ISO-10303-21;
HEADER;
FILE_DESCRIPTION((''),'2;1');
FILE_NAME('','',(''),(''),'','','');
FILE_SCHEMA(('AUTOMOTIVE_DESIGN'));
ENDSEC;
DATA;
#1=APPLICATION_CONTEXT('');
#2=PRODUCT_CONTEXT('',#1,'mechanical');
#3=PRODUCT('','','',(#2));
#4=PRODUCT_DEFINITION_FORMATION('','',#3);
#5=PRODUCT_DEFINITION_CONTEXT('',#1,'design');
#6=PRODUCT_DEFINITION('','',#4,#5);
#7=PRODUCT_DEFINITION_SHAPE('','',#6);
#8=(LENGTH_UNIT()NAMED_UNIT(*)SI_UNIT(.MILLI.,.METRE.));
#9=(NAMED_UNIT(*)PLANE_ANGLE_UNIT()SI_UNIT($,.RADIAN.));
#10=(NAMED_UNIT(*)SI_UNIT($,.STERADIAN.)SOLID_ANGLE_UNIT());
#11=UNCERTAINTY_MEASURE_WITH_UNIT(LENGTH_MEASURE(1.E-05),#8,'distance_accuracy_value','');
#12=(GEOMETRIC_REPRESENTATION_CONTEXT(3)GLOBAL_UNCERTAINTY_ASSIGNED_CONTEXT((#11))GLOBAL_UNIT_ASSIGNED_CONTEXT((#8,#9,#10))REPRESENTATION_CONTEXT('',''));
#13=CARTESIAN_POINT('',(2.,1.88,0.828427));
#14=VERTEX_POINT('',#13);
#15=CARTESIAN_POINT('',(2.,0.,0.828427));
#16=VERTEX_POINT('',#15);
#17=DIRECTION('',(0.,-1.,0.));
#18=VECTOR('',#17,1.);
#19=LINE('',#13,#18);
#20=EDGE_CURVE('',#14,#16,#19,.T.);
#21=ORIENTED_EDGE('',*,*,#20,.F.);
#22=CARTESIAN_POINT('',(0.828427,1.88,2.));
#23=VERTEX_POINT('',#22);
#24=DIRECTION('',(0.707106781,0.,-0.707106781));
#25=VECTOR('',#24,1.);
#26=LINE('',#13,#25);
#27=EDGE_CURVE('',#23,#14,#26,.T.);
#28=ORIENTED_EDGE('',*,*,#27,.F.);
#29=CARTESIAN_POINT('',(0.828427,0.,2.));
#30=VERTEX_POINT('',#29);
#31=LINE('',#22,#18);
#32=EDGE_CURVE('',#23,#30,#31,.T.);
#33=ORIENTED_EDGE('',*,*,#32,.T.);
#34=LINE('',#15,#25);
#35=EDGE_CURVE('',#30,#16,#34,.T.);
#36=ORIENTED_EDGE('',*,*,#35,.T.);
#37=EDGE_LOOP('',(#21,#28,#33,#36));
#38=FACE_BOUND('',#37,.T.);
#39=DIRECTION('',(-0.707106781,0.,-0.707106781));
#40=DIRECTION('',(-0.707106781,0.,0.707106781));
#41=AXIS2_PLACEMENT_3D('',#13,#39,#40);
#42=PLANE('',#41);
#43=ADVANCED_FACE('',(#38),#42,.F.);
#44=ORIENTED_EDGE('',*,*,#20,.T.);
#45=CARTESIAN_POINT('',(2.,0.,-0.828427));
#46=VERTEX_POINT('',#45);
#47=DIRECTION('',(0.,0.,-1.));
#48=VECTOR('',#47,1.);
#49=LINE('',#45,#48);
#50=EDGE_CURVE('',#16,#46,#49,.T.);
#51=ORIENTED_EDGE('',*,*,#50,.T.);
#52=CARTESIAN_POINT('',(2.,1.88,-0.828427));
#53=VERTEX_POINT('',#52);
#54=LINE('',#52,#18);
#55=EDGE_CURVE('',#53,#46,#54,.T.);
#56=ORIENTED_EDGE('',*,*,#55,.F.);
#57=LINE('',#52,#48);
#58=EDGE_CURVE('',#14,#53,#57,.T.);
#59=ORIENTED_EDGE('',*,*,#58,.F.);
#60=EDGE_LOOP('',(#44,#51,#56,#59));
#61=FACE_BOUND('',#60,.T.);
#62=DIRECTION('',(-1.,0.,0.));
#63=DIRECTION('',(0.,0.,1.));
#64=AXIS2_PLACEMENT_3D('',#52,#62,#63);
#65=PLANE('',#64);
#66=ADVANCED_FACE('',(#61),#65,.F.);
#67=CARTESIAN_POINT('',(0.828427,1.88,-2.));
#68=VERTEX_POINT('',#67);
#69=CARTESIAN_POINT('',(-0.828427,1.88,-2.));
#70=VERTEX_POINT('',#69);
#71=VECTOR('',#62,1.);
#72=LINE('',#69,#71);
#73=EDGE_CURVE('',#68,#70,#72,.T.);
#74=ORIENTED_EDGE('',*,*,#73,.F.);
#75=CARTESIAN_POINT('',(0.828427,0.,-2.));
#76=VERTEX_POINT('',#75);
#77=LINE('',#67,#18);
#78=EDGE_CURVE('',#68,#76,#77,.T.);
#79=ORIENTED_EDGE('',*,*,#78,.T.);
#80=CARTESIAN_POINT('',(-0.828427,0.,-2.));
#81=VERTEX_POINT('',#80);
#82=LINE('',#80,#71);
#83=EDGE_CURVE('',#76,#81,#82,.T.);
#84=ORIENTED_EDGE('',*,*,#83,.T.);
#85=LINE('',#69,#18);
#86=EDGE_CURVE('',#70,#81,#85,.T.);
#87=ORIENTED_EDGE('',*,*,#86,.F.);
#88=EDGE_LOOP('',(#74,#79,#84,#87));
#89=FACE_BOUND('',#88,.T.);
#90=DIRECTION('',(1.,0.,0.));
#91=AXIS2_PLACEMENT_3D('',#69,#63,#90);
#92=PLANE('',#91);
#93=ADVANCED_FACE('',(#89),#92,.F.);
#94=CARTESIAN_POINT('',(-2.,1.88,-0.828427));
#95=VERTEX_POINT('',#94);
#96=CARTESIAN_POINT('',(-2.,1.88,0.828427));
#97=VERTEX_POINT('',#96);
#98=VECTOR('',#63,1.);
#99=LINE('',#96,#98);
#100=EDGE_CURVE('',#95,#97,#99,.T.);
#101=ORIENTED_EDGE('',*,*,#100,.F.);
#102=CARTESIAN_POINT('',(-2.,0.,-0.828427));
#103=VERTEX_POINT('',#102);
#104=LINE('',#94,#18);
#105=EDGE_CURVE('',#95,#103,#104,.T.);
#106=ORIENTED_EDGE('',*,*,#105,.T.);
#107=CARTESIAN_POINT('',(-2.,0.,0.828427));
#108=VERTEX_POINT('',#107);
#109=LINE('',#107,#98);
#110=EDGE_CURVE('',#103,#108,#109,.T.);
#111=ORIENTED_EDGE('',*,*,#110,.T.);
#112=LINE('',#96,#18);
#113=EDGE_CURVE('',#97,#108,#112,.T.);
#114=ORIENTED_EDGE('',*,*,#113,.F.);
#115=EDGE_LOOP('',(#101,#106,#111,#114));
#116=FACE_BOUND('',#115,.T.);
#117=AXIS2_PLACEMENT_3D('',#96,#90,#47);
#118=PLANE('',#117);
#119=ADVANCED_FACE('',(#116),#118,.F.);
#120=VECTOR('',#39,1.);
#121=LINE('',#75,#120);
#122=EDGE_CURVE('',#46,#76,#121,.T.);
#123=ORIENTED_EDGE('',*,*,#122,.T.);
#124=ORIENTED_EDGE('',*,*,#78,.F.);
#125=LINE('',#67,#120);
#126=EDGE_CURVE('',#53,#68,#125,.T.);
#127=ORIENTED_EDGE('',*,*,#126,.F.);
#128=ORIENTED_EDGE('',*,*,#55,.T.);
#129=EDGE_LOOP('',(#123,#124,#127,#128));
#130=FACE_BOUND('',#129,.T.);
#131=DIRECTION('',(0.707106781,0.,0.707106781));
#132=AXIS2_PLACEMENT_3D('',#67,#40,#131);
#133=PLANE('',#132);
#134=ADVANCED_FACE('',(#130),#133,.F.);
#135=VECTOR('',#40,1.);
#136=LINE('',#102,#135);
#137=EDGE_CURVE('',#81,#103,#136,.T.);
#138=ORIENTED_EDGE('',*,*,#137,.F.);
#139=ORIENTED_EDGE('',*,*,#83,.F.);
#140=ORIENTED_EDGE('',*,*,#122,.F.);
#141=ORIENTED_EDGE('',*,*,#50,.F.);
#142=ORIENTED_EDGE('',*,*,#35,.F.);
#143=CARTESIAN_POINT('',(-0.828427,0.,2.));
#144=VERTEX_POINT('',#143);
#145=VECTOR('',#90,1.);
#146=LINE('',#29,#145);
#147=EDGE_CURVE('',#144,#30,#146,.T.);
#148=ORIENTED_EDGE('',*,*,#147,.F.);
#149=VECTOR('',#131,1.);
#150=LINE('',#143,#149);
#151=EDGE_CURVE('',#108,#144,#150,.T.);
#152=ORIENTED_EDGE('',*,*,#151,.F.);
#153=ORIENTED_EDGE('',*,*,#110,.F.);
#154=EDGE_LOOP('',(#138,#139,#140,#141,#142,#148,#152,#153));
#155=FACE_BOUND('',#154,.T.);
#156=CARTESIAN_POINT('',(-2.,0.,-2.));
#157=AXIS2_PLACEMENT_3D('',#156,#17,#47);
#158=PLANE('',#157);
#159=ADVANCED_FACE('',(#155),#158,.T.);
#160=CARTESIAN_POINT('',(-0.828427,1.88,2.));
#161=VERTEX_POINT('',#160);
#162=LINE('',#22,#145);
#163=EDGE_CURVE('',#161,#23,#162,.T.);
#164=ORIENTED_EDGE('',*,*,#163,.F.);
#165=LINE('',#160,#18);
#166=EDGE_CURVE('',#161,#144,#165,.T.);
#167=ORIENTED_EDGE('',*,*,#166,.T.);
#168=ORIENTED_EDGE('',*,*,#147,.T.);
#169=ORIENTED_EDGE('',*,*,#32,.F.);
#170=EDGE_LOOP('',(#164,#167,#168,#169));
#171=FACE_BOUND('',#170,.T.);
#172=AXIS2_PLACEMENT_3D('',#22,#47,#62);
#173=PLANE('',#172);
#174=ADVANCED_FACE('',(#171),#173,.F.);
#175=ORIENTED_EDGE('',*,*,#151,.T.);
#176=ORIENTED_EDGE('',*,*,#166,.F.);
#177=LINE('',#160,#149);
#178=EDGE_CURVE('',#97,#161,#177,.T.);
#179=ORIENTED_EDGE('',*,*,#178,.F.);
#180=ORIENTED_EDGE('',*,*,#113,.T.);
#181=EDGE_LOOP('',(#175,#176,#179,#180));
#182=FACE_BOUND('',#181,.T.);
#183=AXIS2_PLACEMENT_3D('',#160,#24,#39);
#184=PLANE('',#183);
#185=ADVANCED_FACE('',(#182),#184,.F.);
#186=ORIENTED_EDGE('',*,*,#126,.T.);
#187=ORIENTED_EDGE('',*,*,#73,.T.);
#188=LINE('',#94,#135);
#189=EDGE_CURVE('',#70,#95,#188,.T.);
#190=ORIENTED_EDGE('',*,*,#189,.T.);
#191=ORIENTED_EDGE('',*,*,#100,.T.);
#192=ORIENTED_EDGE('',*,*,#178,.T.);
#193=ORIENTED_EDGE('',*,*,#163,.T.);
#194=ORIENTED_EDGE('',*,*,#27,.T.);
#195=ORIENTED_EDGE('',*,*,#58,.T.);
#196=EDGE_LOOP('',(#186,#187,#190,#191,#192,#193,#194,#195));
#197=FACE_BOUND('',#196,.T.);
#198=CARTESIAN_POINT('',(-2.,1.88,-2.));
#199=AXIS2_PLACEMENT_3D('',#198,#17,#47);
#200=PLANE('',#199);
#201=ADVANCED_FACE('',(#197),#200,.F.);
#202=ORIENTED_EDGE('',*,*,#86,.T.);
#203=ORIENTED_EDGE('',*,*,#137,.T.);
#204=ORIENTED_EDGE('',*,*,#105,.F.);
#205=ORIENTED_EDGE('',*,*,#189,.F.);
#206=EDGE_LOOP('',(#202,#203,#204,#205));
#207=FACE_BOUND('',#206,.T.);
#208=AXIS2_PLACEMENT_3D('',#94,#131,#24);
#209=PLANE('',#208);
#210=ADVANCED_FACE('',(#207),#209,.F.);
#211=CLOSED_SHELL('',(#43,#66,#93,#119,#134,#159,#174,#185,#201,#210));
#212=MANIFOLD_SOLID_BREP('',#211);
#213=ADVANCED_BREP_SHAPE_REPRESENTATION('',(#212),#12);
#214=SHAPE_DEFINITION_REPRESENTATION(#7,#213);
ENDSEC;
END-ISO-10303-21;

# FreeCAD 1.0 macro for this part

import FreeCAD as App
import Part
import Sketcher


def add_polygon(sketch, points):
    """Adds a closed chain of lines whose ends are joined by coincident constraints."""
    first, n = sketch.GeometryCount, len(points)
    for a, b in zip(points, points[1:] + points[:1]):
        sketch.addGeometry(Part.LineSegment(App.Vector(*a, 0), App.Vector(*b, 0)), False)
    for i in range(n):
        sketch.addConstraint(Sketcher.Constraint("Coincident", first + i, 2, first + (i + 1) % n, 1))

doc = App.newDocument("Part")
params = doc.addObject("Spreadsheet::Sheet", "Params")
for row, (alias, value) in enumerate([
    ("pad1_length", "1.88 mm"),
], start=1):
    params.set(f"A{row}", alias)
    params.set(f"B{row}", "=" + value)
    params.setAlias(f"B{row}", alias)

body = doc.addObject("PartDesign::Body", "Body")

# Sketch on XZ plane
sketch1 = body.newObject("Sketcher::SketchObject", "Sketch")
sketch1.AttachmentSupport = (doc.getObject("XZ_Plane"), [""])
sketch1.MapMode = "FlatFace"
add_polygon(sketch1, [(-0.828427, -2), (-2, -0.828427), (-2, 0.828427), (-0.828427, 2), (0.828427, 2), (2, 0.828427), (2, -0.828427), (0.828427, -2)])  # lines 0-7
sketch1.addConstraint(Sketcher.Constraint("Vertical", 1))
sketch1.addConstraint(Sketcher.Constraint("Horizontal", 3))
sketch1.addConstraint(Sketcher.Constraint("Vertical", 5))
sketch1.addConstraint(Sketcher.Constraint("Horizontal", 7))
sketch1.addConstraint(Sketcher.Constraint("Symmetric", 0, 2, 4, 2, -1, 1))
sketch1.addConstraint(Sketcher.Constraint("Symmetric", 2, 2, 6, 2, -1, 1))
sketch1.addConstraint(Sketcher.Constraint("Perpendicular", 0, 2))
sketch1.addConstraint(Sketcher.Constraint("Perpendicular", 2, 4))
sketch1.addConstraint(Sketcher.Constraint("Perpendicular", 4, 6))
sketch1.addConstraint(Sketcher.Constraint("Horizontal", 1, 2, 4, 2))
sketch1.addConstraint(Sketcher.Constraint("Vertical", 3, 2, 6, 2))
sketch1.addConstraint(Sketcher.Constraint("Equal", 7, 1))
sketch1.addConstraint(Sketcher.Constraint("DistanceX", 0, 2, -1, 1, 2.0))
sketch1.addConstraint(Sketcher.Constraint("DistanceX", 3, 1, 3, 2, 1.656854))
pad1 = body.newObject("PartDesign::Pad", "Pad")
pad1.Profile = sketch1
pad1.setExpression("Length", "Params.pad1_length")
pad1.Reversed = True

doc.recompute()
